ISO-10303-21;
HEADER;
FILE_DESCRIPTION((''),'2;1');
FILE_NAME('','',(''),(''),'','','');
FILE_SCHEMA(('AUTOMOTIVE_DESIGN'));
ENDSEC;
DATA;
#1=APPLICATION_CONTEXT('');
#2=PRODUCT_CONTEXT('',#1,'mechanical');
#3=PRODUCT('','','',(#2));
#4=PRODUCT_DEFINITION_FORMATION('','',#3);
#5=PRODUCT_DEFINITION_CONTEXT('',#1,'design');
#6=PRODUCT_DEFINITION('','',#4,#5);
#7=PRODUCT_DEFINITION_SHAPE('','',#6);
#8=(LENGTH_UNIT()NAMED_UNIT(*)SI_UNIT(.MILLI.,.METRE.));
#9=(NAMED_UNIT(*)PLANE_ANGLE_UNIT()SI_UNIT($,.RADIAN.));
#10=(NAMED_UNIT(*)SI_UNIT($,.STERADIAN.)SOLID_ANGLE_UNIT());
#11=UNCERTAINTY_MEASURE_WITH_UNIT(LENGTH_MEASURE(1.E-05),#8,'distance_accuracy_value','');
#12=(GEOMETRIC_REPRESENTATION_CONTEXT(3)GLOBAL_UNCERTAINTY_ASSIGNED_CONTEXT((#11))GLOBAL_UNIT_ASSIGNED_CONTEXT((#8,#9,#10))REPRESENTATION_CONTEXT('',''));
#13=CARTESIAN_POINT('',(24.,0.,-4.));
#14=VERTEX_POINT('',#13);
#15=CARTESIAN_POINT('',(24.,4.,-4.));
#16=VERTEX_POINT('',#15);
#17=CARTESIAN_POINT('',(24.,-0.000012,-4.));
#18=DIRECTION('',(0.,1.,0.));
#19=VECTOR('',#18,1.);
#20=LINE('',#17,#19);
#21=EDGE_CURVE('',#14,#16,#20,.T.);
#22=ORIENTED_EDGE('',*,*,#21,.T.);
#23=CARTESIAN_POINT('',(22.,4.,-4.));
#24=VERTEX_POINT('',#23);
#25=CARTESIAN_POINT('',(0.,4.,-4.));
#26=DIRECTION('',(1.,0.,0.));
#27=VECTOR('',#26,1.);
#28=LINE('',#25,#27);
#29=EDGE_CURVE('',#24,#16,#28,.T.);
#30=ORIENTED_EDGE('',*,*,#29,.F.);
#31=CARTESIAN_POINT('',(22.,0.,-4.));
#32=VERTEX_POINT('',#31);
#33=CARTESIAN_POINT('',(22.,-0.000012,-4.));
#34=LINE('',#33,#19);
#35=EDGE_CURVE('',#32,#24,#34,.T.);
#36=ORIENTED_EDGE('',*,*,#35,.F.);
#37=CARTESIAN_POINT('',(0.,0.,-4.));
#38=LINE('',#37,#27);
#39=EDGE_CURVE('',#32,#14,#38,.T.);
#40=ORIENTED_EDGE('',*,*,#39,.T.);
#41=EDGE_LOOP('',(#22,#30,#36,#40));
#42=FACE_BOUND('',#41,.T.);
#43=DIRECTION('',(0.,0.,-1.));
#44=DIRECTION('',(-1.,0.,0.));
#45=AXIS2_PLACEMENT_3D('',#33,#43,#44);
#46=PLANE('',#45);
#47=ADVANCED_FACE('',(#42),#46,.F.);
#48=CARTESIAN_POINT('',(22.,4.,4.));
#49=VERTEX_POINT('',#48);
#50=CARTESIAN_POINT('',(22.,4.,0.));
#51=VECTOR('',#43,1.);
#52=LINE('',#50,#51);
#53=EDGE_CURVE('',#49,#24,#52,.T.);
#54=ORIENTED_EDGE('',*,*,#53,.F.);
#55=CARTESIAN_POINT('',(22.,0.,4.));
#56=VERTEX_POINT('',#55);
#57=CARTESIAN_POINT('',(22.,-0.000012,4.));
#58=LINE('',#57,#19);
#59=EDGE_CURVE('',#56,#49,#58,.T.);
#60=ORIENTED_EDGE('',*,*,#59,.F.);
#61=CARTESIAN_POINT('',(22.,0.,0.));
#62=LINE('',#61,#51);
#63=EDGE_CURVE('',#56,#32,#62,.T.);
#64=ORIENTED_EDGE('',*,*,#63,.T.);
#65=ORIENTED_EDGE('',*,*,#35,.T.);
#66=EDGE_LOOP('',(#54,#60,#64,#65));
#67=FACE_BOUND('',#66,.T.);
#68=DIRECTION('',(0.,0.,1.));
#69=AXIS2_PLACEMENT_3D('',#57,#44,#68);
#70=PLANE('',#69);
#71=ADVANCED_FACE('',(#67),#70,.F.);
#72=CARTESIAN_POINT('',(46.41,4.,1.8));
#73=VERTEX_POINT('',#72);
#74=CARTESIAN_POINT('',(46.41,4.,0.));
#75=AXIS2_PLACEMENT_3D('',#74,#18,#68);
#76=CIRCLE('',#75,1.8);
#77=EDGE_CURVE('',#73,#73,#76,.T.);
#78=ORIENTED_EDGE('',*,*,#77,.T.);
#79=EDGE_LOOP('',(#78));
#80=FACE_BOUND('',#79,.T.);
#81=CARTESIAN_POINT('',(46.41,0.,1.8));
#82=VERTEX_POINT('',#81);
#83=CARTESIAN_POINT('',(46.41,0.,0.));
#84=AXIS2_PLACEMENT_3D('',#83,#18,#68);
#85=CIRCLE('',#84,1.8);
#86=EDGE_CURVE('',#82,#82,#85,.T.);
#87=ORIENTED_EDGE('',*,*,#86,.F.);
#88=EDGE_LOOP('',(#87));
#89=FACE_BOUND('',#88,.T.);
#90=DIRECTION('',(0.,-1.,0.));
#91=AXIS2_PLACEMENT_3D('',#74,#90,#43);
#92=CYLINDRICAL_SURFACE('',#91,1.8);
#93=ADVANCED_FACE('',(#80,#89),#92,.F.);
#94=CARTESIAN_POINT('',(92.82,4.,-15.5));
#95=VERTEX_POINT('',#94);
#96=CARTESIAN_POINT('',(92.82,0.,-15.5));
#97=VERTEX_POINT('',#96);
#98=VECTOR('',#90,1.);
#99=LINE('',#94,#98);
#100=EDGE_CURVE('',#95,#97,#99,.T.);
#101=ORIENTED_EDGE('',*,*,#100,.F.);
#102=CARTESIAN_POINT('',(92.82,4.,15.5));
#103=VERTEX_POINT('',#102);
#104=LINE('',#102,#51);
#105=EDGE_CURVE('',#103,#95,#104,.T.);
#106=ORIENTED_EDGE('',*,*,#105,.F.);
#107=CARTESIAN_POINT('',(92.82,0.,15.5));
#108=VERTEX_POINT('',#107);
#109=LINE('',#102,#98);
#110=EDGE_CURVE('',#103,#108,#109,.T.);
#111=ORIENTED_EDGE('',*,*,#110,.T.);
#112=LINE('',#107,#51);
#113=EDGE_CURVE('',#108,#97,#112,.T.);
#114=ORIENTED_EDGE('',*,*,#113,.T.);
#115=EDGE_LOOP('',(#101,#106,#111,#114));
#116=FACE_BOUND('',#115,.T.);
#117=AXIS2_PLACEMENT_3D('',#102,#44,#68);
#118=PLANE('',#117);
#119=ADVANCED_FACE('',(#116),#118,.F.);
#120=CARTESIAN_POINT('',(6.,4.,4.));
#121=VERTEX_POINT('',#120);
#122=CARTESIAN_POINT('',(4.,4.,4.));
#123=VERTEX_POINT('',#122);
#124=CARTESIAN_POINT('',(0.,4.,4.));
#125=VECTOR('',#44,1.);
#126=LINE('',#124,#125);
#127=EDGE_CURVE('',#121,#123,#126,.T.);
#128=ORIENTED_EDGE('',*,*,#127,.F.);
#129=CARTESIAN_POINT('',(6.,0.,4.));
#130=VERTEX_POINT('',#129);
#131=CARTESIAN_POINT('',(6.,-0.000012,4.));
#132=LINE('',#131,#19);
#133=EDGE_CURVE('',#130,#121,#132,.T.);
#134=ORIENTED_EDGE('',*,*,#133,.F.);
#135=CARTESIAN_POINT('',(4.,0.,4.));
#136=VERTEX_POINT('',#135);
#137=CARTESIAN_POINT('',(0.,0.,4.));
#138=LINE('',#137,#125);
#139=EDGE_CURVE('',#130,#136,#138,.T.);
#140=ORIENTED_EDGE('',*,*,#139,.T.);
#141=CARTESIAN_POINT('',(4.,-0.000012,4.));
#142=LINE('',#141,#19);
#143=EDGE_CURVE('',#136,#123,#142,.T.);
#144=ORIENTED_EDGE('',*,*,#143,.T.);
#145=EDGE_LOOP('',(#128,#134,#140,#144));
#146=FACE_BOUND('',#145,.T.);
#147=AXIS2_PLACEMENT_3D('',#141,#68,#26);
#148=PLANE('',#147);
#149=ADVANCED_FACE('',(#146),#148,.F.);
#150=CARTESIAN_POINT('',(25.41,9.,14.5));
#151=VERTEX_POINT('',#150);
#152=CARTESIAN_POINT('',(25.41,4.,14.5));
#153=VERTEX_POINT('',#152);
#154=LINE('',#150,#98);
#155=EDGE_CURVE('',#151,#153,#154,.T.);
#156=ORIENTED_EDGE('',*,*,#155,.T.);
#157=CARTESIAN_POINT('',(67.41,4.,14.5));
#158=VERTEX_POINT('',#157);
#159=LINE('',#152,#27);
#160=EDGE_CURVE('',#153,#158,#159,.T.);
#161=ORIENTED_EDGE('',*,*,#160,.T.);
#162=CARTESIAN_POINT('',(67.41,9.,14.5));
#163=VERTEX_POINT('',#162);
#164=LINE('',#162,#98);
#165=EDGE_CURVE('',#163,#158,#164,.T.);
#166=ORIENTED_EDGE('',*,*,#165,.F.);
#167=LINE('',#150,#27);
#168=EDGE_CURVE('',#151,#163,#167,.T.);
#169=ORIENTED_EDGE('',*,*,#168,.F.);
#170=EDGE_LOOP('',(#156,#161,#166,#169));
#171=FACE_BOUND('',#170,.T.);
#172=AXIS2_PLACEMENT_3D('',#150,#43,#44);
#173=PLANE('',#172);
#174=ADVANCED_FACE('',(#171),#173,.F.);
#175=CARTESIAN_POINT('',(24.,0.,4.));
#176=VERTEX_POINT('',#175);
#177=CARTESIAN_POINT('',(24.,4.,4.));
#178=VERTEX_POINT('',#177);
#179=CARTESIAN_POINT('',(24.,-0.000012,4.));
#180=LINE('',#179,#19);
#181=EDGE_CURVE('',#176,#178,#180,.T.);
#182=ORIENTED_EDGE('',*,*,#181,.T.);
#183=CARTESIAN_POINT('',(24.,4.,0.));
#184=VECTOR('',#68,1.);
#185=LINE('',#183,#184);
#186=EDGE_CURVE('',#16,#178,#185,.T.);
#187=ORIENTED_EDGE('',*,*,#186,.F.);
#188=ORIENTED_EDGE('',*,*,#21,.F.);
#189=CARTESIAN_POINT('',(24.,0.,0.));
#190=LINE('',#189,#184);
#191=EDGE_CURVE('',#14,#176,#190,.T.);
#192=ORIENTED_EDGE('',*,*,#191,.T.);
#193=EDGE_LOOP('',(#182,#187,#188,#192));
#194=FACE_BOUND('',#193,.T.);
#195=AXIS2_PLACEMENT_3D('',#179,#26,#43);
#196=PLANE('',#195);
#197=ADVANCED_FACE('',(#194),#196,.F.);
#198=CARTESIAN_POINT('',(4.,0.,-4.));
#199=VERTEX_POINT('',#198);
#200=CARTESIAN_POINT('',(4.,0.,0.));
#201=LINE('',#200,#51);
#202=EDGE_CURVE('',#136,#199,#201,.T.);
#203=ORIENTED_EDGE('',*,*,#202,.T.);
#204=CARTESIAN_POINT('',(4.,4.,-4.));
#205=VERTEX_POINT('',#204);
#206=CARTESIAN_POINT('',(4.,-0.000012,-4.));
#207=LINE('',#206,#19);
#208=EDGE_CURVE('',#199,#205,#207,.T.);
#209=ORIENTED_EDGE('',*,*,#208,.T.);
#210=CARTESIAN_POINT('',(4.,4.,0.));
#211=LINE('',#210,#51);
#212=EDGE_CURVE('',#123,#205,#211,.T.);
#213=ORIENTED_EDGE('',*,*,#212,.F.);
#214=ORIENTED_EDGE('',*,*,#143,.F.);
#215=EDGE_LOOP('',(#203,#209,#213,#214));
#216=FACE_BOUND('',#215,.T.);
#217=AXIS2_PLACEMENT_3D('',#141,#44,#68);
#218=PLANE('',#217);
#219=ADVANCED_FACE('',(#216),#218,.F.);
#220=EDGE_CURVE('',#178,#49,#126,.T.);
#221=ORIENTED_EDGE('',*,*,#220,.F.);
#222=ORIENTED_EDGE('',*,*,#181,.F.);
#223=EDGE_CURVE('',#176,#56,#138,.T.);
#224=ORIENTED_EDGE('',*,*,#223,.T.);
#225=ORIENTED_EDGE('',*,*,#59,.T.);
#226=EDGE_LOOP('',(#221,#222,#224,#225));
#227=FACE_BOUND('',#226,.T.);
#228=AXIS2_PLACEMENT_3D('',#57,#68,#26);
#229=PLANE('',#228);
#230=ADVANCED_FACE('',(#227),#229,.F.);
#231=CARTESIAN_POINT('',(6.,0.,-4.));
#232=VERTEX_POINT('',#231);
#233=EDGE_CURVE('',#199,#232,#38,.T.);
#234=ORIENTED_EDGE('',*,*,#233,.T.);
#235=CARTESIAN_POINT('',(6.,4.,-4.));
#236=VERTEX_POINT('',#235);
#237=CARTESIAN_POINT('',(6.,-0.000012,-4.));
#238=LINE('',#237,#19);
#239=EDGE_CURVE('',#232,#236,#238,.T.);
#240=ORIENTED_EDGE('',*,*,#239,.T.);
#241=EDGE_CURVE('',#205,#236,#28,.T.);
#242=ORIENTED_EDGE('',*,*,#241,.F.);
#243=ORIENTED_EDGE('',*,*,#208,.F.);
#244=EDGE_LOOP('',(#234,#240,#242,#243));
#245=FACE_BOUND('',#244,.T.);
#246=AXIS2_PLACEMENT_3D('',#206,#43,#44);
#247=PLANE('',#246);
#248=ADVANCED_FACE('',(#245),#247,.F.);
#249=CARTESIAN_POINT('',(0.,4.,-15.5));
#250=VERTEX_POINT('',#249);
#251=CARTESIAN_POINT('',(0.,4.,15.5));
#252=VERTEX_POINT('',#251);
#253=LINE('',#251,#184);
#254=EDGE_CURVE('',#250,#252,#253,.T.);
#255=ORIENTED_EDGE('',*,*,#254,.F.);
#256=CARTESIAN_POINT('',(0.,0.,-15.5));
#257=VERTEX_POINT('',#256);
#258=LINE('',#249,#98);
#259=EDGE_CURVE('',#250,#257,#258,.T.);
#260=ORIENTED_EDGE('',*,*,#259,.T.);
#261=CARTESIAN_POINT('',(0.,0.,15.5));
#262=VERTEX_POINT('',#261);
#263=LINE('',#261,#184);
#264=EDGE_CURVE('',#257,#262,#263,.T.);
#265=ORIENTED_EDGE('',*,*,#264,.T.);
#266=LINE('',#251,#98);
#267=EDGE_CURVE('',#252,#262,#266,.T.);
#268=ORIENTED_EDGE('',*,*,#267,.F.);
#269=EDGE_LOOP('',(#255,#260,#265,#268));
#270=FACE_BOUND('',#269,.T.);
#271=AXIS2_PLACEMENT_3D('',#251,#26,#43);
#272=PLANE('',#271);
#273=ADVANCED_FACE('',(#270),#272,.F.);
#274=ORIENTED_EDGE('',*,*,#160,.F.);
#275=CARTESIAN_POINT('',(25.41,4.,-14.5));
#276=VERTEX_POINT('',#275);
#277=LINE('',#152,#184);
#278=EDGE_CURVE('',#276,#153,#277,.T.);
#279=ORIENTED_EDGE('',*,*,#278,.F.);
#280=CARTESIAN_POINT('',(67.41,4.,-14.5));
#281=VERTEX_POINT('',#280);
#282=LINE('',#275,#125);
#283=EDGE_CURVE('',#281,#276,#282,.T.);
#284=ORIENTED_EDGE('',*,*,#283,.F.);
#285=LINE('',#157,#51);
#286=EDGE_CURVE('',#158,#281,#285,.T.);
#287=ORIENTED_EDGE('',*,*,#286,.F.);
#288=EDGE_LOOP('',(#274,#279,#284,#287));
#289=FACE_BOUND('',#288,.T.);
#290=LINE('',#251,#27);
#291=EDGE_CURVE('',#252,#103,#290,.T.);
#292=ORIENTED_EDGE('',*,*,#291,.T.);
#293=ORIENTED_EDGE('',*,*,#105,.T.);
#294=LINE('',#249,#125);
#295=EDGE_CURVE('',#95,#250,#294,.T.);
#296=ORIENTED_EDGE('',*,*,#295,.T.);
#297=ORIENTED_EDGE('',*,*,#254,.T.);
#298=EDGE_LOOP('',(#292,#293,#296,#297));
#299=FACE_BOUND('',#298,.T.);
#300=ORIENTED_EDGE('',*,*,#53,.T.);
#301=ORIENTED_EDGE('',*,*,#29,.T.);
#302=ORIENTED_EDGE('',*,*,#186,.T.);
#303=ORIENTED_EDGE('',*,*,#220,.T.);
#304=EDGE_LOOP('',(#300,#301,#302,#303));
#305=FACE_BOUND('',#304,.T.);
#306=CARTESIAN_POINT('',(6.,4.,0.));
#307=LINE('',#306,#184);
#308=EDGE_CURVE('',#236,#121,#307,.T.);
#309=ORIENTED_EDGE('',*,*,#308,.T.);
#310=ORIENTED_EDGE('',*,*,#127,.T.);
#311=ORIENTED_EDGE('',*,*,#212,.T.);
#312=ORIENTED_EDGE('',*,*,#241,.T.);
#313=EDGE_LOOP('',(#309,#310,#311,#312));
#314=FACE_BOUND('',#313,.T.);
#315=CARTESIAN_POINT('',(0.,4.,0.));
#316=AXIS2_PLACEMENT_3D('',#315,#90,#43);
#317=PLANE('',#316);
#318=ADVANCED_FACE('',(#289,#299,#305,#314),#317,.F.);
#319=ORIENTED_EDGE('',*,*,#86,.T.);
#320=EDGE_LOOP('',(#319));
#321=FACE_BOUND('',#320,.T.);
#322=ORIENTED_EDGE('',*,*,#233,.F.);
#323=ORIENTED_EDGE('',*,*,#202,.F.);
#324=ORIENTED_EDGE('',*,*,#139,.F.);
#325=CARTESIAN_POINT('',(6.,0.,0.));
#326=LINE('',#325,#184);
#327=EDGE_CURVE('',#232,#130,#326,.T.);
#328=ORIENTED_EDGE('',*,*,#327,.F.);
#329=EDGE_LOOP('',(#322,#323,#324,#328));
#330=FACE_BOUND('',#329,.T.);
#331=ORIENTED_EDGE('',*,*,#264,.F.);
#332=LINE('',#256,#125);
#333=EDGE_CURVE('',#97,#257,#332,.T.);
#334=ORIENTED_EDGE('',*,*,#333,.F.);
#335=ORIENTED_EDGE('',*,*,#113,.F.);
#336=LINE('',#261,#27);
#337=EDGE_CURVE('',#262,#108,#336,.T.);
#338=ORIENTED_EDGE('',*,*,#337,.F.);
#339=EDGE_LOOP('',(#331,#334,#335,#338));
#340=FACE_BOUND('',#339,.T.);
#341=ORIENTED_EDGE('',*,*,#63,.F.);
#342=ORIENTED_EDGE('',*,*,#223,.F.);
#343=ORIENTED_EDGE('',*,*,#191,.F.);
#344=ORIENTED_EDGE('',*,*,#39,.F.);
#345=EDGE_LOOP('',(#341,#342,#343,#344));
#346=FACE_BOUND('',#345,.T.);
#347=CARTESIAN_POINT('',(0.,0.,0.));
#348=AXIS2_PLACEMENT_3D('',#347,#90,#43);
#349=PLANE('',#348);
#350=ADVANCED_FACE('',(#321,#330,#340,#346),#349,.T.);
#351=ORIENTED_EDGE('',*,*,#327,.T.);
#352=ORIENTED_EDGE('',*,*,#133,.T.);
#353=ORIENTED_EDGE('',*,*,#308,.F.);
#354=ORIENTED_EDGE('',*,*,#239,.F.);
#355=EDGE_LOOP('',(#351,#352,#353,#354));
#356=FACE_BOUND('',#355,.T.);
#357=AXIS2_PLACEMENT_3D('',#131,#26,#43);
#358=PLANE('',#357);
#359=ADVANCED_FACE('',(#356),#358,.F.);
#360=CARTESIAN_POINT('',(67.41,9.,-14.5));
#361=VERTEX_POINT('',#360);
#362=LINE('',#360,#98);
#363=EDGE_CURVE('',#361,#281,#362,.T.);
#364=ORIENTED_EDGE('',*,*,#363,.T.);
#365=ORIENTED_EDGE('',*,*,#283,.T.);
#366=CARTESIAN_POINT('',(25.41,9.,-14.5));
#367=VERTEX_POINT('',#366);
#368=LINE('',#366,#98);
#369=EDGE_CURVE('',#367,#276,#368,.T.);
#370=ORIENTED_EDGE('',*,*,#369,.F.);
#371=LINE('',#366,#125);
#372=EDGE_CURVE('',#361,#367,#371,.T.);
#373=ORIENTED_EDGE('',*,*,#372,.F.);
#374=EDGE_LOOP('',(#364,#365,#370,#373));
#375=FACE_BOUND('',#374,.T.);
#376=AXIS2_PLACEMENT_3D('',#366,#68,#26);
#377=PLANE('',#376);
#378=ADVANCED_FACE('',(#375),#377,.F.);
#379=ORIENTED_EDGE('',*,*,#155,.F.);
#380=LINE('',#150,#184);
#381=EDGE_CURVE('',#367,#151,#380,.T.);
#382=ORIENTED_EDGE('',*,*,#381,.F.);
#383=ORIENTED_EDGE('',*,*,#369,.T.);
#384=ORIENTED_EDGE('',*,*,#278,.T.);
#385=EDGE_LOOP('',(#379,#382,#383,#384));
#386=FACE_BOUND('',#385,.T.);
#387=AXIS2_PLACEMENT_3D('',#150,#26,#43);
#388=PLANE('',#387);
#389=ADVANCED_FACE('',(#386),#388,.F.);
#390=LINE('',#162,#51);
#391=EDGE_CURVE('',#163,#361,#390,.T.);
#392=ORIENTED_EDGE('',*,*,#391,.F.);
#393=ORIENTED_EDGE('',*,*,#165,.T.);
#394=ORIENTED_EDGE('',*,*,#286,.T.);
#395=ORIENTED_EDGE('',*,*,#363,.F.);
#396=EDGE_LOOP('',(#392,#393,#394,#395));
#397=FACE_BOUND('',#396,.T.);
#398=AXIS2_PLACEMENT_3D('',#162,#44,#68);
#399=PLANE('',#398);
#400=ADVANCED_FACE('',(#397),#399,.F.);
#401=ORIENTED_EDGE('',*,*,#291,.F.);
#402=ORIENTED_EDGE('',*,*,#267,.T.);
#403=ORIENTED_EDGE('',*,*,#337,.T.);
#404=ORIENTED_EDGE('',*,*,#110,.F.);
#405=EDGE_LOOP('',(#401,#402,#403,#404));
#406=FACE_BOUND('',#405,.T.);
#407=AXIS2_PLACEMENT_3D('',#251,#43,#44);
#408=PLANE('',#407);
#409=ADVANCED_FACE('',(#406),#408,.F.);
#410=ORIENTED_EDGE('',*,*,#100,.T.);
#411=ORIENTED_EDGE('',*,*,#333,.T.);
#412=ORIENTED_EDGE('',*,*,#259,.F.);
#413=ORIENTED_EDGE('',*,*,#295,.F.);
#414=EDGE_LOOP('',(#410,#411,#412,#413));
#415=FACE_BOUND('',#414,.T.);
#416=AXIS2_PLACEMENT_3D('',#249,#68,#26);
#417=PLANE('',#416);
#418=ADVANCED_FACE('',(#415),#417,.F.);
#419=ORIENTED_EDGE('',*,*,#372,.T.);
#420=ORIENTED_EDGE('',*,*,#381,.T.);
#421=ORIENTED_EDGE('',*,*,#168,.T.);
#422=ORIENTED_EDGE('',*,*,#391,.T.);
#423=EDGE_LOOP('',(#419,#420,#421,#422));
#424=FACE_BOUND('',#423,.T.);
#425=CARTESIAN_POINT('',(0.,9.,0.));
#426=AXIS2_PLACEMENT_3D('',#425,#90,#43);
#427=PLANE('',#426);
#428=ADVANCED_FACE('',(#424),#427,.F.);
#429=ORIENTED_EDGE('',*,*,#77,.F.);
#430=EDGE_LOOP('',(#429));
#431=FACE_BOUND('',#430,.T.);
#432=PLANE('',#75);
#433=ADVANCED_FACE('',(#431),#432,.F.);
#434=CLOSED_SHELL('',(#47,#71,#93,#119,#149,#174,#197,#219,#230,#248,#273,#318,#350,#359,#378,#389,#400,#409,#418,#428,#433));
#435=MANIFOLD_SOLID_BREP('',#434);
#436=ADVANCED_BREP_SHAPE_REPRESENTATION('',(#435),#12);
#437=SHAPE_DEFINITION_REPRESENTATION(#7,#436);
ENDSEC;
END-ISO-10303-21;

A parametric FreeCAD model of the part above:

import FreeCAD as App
import Part
import Sketcher

V = App.Vector
Q = App.Units.Quantity


def add_polygon(sketch, points):
    """Adds a closed chain of lines whose ends are joined by coincident constraints."""
    first, n = sketch.GeometryCount, len(points)
    for a, b in zip(points, points[1:] + points[:1]):
        sketch.addGeometry(Part.LineSegment(App.Vector(*a, 0), App.Vector(*b, 0)), False)
    for i in range(n):
        sketch.addConstraint(Sketcher.Constraint("Coincident", first + i, 2, first + (i + 1) % n, 1))

doc = App.newDocument("Part")
params = doc.addObject("Spreadsheet::Sheet", "Params")
for row, (alias, value) in enumerate([
    ("sketch1_height", "31 mm"),
    ("sketch1_width", "92.82 mm"),
    ("pad1_length", "4 mm"),
    ("sketch2_width", "42 mm"),
    ("sketch2_height", "29 mm"),
    ("pad2_length", "5 mm"),
    ("sketch3_diameter", "3.6 mm"),
    ("pocket1_length", "4 mm"),
    ("sketch4_width", "2 mm"),
    ("sketch4_height", "8 mm"),
], start=1):
    params.set(f"A{row}", alias)
    params.set(f"B{row}", "=" + value)
    params.setAlias(f"B{row}", alias)

body = doc.addObject("PartDesign::Body", "Body")

# Sketch on XZ plane
sketch1 = body.newObject("Sketcher::SketchObject", "Sketch")
sketch1.AttachmentSupport = (doc.getObject("XZ_Plane"), [""])
sketch1.MapMode = "FlatFace"
add_polygon(sketch1, [(0, -16), (0, 16), (93, 16), (93, -16)])  # lines 0-3
sketch1.addConstraint(Sketcher.Constraint("Vertical", 0))
sketch1.addConstraint(Sketcher.Constraint("Horizontal", 1))
sketch1.addConstraint(Sketcher.Constraint("Vertical", 2))
sketch1.addConstraint(Sketcher.Constraint("Horizontal", 3))
sketch1.addConstraint(Sketcher.Constraint("Symmetric", 0, 2, 3, 2, -1, 1))
sketch1.addConstraint(Sketcher.Constraint("DistanceY", 0, 1, 0, 2, Q("31 mm")))
sketch1.addConstraint(Sketcher.Constraint("DistanceX", 1, 1, 1, 2, Q("92.82 mm")))
sketch1.setExpression("Constraints[9]", "Params.sketch1_height")
sketch1.setExpression("Constraints[10]", "Params.sketch1_width")
pad1 = body.newObject("PartDesign::Pad", "Pad")
pad1.Profile = sketch1
pad1.setExpression("Length", "Params.pad1_length")
pad1.Reversed = True

# Sketch on XZ plane
sketch2 = body.newObject("Sketcher::SketchObject", "Sketch001")
sketch2.AttachmentSupport = (doc.getObject("XZ_Plane"), [""])
sketch2.MapMode = "FlatFace"
sketch2.AttachmentOffset = App.Placement(V(0, 0, -4), App.Rotation())
add_polygon(sketch2, [(25, -14), (25, 14), (67, 14), (67, -14)])  # lines 0-3
sketch2.addConstraint(Sketcher.Constraint("Vertical", 0))
sketch2.addConstraint(Sketcher.Constraint("Horizontal", 1))
sketch2.addConstraint(Sketcher.Constraint("Vertical", 2))
sketch2.addConstraint(Sketcher.Constraint("Horizontal", 3))
sketch2.addConstraint(Sketcher.Constraint("DistanceX", 1, 1, 1, 2, Q("42 mm")))
sketch2.addConstraint(Sketcher.Constraint("DistanceY", 0, 1, 0, 2, Q("29 mm")))
sketch2.addConstraint(Sketcher.Constraint("DistanceY", -1, 1, 0, 2, Q("14.5 mm")))
sketch2.addConstraint(Sketcher.Constraint("DistanceX", -1, 1, 0, 2, Q("25.41 mm")))
sketch2.setExpression("Constraints[8]", "Params.sketch2_width")
sketch2.setExpression("Constraints[9]", "Params.sketch2_height")
pad2 = body.newObject("PartDesign::Pad", "Pad001")
pad2.Profile = sketch2
pad2.setExpression("Length", "Params.pad2_length")
pad2.Reversed = True

# Sketch on XZ plane
sketch3 = body.newObject("Sketcher::SketchObject", "Sketch002")
sketch3.AttachmentSupport = (doc.getObject("XZ_Plane"), [""])
sketch3.MapMode = "FlatFace"
sketch3.addGeometry(Part.Circle(V(46.4, 0, 0), V(0, 0, 1), 1.8), False)
sketch3.addConstraint(Sketcher.Constraint("PointOnObject", 0, 3, -1))
sketch3.addConstraint(Sketcher.Constraint("Diameter", 0, Q("3.6 mm")))
sketch3.addConstraint(Sketcher.Constraint("DistanceX", -1, 1, 0, 3, Q("46.41 mm")))
sketch3.setExpression("Constraints[1]", "Params.sketch3_diameter")
pocket1 = body.newObject("PartDesign::Pocket", "Pocket")
pocket1.Profile = sketch3
pocket1.setExpression("Length", "Params.pocket1_length")

# Sketch on XZ plane
sketch4 = body.newObject("Sketcher::SketchObject", "Sketch003")
sketch4.AttachmentSupport = (doc.getObject("XZ_Plane"), [""])
sketch4.MapMode = "FlatFace"
add_polygon(sketch4, [(4, -4), (4, 4), (6, 4), (6, -4)])  # lines 0-3
add_polygon(sketch4, [(22, -4), (22, 4), (24, 4), (24, -4)])  # lines 4-7
sketch4.addConstraint(Sketcher.Constraint("Vertical", 0))
sketch4.addConstraint(Sketcher.Constraint("Horizontal", 1))
sketch4.addConstraint(Sketcher.Constraint("Vertical", 2))
sketch4.addConstraint(Sketcher.Constraint("Horizontal", 3))
sketch4.addConstraint(Sketcher.Constraint("Vertical", 4))
sketch4.addConstraint(Sketcher.Constraint("Horizontal", 5))
sketch4.addConstraint(Sketcher.Constraint("Vertical", 6))
sketch4.addConstraint(Sketcher.Constraint("Horizontal", 7))
sketch4.addConstraint(Sketcher.Constraint("Horizontal", 1, 2, 4, 2))
sketch4.addConstraint(Sketcher.Constraint("Horizontal", 3, 2, 6, 2))
sketch4.addConstraint(Sketcher.Constraint("Equal", 3, 5))
sketch4.addConstraint(Sketcher.Constraint("DistanceX", 1, 1, 1, 2, Q("2 mm")))
sketch4.addConstraint(Sketcher.Constraint("DistanceY", 0, 1, 0, 2, Q("8 mm")))
sketch4.addConstraint(Sketcher.Constraint("DistanceX", -1, 1, 0, 2, Q("4 mm")))
sketch4.addConstraint(Sketcher.Constraint("DistanceY", -1, 1, 0, 2, Q("4 mm")))
sketch4.addConstraint(Sketcher.Constraint("DistanceX", -1, 1, 4, 2, Q("22 mm")))
sketch4.setExpression("Constraints[19]", "Params.sketch4_width")
sketch4.setExpression("Constraints[20]", "Params.sketch4_height")
pocket2 = body.newObject("PartDesign::Pocket", "Pocket001")
pocket2.Profile = sketch4
pocket2.Type = "ThroughAll"
pocket2.Midplane = True

doc.recompute()
